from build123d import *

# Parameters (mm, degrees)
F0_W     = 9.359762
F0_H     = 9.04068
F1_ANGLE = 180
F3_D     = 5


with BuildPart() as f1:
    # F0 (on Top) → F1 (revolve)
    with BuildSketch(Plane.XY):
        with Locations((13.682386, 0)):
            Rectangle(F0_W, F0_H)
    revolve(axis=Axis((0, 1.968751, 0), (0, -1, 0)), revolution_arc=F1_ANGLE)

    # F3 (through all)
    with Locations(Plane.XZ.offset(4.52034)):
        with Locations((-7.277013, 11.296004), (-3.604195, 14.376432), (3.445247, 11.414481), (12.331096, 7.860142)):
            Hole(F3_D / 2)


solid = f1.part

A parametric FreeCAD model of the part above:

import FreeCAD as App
import Part
import Sketcher

V = App.Vector
Q = App.Units.Quantity

doc = App.newDocument("Part")
body = doc.addObject("PartDesign::Body", "Body")

# Sketch on XY plane
sketch1 = body.newObject("Sketcher::SketchObject", "Sketch")
sketch1.AttachmentSupport = (doc.getObject("XY_Plane"), [""])
sketch1.MapMode = "FlatFace"
sketch1.addGeometry([
    Part.LineSegment(V(9, 5, 0), V(9, -5, 0)),
    Part.LineSegment(V(9, -5, 0), V(18, -5, 0)),
    Part.LineSegment(V(18, -5, 0), V(18, 5, 0)),
    Part.LineSegment(V(18, 5, 0), V(9, 5, 0)),
], False)
sketch1.addConstraint([
    Sketcher.Constraint("Coincident", 0, 2, 1, 1),
    Sketcher.Constraint("Coincident", 1, 2, 2, 1),
    Sketcher.Constraint("Coincident", 2, 2, 3, 1),
    Sketcher.Constraint("Coincident", 3, 2, 0, 1),
    Sketcher.Constraint("Vertical", 0),
    Sketcher.Constraint("Horizontal", 1),
    Sketcher.Constraint("Vertical", 2),
    Sketcher.Constraint("Horizontal", 3),
    Sketcher.Constraint("DistanceY", 0, 2, 0, 1, Q("9.04068 mm")),
    Sketcher.Constraint("DistanceX", 1, 1, 1, 2, Q("9.359762 mm")),
    Sketcher.Constraint("DistanceY", 0, 2, -1, 1, Q("4.52034 mm")),
    Sketcher.Constraint("DistanceX", -1, 1, 0, 2, Q("9.002505 mm")),
])
revolution = body.newObject("PartDesign::Revolution", "Revolution")
revolution.Profile = sketch1
revolution.ReferenceAxis = (sketch1, ["V_Axis"])
revolution.Angle = 180
revolution.Reversed = True

# Sketch on XZ plane
sketch2 = body.newObject("Sketcher::SketchObject", "Sketch001")
sketch2.AttachmentSupport = (doc.getObject("XZ_Plane"), [""])
sketch2.MapMode = "FlatFace"
sketch2.AttachmentOffset = App.Placement(V(0, 0, 4.52034), App.Rotation())
sketch2.addGeometry([
    Part.Circle(V(-7.3, 11.3, 0), V(0, 0, 1), 2.5),
    Part.Circle(V(-3.6, 14.4, 0), V(0, 0, 1), 2.5),
    Part.Circle(V(3.4, 11.4, 0), V(0, 0, 1), 2.5),
    Part.Circle(V(12.3, 7.9, 0), V(0, 0, 1), 2.5),
], False)
sketch2.addConstraint([
    Sketcher.Constraint("Equal", 0, 1),
    Sketcher.Constraint("Equal", 1, 2),
    Sketcher.Constraint("Equal", 2, 3),
    Sketcher.Constraint("Diameter", 0, Q("5 mm")),
    Sketcher.Constraint("DistanceY", -1, 1, 2, 3, Q("11.414481 mm")),
    Sketcher.Constraint("DistanceY", -1, 1, 3, 3, Q("7.860142 mm")),
    Sketcher.Constraint("DistanceX", 0, 3, 1, 3, Q("3.672818 mm")),
    Sketcher.Constraint("DistanceY", 2, 3, 1, 3, Q("2.961951 mm")),
    Sketcher.Constraint("DistanceX", 0, 3, 2, 3, Q("10.72226 mm")),
    Sketcher.Constraint("DistanceX", 2, 3, 3, 3, Q("8.885849 mm")),
    Sketcher.Constraint("DistanceX", 0, 3, -1, 1, Q("7.277013 mm")),
    Sketcher.Constraint("DistanceY", -1, 1, 0, 3, Q("11.296004 mm")),
])
doc.recompute()
hole = body.newObject("PartDesign::Hole", "Hole")
hole.Profile = sketch2
hole.ThreadType = "None"
hole.Diameter = 5
hole.DepthType = "ThroughAll"

doc.recompute()
